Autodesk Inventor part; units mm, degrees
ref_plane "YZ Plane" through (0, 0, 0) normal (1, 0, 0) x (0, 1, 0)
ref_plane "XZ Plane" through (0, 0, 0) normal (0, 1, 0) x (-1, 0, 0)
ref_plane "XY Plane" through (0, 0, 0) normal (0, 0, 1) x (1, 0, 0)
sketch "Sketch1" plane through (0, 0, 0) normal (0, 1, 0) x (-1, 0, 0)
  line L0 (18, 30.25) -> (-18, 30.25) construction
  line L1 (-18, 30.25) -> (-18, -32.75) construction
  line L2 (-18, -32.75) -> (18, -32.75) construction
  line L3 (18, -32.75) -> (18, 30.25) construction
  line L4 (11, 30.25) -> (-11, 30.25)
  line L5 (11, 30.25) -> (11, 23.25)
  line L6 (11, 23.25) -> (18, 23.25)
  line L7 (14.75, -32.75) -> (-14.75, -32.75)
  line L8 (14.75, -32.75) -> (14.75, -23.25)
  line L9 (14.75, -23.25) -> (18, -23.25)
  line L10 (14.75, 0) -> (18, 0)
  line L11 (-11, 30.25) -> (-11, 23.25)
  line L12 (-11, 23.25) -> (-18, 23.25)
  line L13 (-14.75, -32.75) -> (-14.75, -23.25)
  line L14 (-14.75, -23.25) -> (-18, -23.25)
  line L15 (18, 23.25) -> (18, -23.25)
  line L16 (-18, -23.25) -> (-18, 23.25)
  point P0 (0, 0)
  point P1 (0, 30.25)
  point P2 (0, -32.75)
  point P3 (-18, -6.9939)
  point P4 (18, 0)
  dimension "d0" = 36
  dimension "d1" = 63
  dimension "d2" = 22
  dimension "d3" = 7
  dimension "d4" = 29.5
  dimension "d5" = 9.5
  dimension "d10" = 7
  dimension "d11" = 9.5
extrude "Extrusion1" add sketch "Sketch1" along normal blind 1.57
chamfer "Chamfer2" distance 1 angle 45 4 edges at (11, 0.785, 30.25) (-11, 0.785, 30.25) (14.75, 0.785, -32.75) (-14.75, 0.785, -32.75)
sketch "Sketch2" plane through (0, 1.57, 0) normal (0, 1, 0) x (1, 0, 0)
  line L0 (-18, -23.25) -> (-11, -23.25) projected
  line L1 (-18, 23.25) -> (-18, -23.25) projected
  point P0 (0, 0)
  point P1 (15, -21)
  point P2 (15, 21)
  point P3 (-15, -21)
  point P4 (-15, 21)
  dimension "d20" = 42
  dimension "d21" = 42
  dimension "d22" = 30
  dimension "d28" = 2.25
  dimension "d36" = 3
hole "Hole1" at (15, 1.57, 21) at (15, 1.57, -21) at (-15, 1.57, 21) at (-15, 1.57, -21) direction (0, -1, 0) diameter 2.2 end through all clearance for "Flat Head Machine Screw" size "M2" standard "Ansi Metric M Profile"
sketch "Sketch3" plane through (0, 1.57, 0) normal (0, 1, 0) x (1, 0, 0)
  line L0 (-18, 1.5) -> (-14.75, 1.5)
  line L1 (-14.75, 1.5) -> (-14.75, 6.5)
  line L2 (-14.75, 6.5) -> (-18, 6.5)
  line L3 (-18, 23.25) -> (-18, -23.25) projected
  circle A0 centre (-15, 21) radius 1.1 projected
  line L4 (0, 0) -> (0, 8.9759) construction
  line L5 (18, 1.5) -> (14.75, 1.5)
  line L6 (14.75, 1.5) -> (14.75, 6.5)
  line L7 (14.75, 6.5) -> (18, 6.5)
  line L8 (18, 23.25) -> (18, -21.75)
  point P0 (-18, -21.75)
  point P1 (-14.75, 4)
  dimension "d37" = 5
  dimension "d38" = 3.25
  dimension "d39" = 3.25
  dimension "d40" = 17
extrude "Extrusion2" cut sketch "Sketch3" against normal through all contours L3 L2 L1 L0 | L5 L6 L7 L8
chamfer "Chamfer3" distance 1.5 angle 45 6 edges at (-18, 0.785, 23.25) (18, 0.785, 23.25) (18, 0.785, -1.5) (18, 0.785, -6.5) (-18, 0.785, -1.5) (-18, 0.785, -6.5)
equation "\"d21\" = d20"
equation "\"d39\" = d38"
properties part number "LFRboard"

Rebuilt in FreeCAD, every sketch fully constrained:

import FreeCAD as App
import Part
import Sketcher
from FreeCAD import Vector


def edges_at(feature, points):
    """Names of the edges that pass closest to the given points."""
    edges = feature.Shape.Edges
    near = lambda p: min(range(len(edges)), key=lambda i: edges[i].distToShape(Part.Vertex(*p))[0])
    return sorted({f"Edge{near(p) + 1}" for p in points})

doc = App.newDocument("Part")
body = doc.addObject("PartDesign::Body", "Body")

# Sketch on XZ plane
sketch1 = doc.addObject("Sketcher::SketchObject", "Sketch")
body.addObject(sketch1)
sketch1.AttachmentSupport = (doc.XZ_Plane, [""])
sketch1.MapMode = "FlatFace"
sketch1.addGeometry(Part.LineSegment(Vector(-11, 23.2, 0), Vector(-11, 30.2, 0)), False)
sketch1.addGeometry(Part.LineSegment(Vector(-11, 30.2, 0), Vector(11, 30.2, 0)), False)
sketch1.addGeometry(Part.LineSegment(Vector(11, 30.2, 0), Vector(11, 23.2, 0)), False)
sketch1.addGeometry(Part.LineSegment(Vector(11, 23.2, 0), Vector(18, 23.2, 0)), False)
sketch1.addGeometry(Part.LineSegment(Vector(18, 23.2, 0), Vector(18, -23.2, 0)), False)
sketch1.addGeometry(Part.LineSegment(Vector(18, -23.2, 0), Vector(14.8, -23.2, 0)), False)
sketch1.addGeometry(Part.LineSegment(Vector(14.8, -23.2, 0), Vector(14.8, -32.8, 0)), False)
sketch1.addGeometry(Part.LineSegment(Vector(14.8, -32.8, 0), Vector(-14.8, -32.8, 0)), False)
sketch1.addGeometry(Part.LineSegment(Vector(-14.8, -32.8, 0), Vector(-14.8, -23.2, 0)), False)
sketch1.addGeometry(Part.LineSegment(Vector(-14.8, -23.2, 0), Vector(-18, -23.2, 0)), False)
sketch1.addGeometry(Part.LineSegment(Vector(-18, -23.2, 0), Vector(-18, 23.2, 0)), False)
sketch1.addGeometry(Part.LineSegment(Vector(-18, 23.2, 0), Vector(-11, 23.2, 0)), False)
sketch1.addConstraint(Sketcher.Constraint("Coincident", 0, 2, 1, 1))
sketch1.addConstraint(Sketcher.Constraint("Coincident", 1, 2, 2, 1))
sketch1.addConstraint(Sketcher.Constraint("Coincident", 2, 2, 3, 1))
sketch1.addConstraint(Sketcher.Constraint("Coincident", 3, 2, 4, 1))
sketch1.addConstraint(Sketcher.Constraint("Coincident", 4, 2, 5, 1))
sketch1.addConstraint(Sketcher.Constraint("Coincident", 5, 2, 6, 1))
sketch1.addConstraint(Sketcher.Constraint("Coincident", 6, 2, 7, 1))
sketch1.addConstraint(Sketcher.Constraint("Coincident", 7, 2, 8, 1))
sketch1.addConstraint(Sketcher.Constraint("Coincident", 8, 2, 9, 1))
sketch1.addConstraint(Sketcher.Constraint("Coincident", 9, 2, 10, 1))
sketch1.addConstraint(Sketcher.Constraint("Coincident", 10, 2, 11, 1))
sketch1.addConstraint(Sketcher.Constraint("Coincident", 11, 2, 0, 1))
sketch1.addConstraint(Sketcher.Constraint("Vertical", 0))
sketch1.addConstraint(Sketcher.Constraint("Horizontal", 1))
sketch1.addConstraint(Sketcher.Constraint("Vertical", 2))
sketch1.addConstraint(Sketcher.Constraint("Horizontal", 3))
sketch1.addConstraint(Sketcher.Constraint("Vertical", 4))
sketch1.addConstraint(Sketcher.Constraint("Horizontal", 5))
sketch1.addConstraint(Sketcher.Constraint("Vertical", 6))
sketch1.addConstraint(Sketcher.Constraint("Horizontal", 7))
sketch1.addConstraint(Sketcher.Constraint("Vertical", 8))
sketch1.addConstraint(Sketcher.Constraint("Horizontal", 9))
sketch1.addConstraint(Sketcher.Constraint("Vertical", 10))
sketch1.addConstraint(Sketcher.Constraint("Horizontal", 11))
sketch1.addConstraint(Sketcher.Constraint("Symmetric", 3, 2, 9, 2, -1, 1))
sketch1.addConstraint(Sketcher.Constraint("Symmetric", 5, 2, 8, 2, -2))
sketch1.addConstraint(Sketcher.Constraint("Symmetric", 2, 2, 11, 2, -2))
sketch1.addConstraint(Sketcher.Constraint("Equal", 11, 0))
sketch1.addConstraint(Sketcher.Constraint("DistanceX", 1, 1, 1, 2, 22.0))
sketch1.addConstraint(Sketcher.Constraint("DistanceX", 3, 1, 3, 2, 7.0))
sketch1.addConstraint(Sketcher.Constraint("DistanceX", 7, 2, 7, 1, 29.5))
sketch1.addConstraint(Sketcher.Constraint("DistanceY", 6, 2, 6, 1, 9.5))
sketch1.addConstraint(Sketcher.Constraint("DistanceY", 6, 2, 1, 2, 63.0))
pad1 = doc.addObject("PartDesign::Pad", "Pad")
body.addObject(pad1)
pad1.Profile = sketch1
pad1.Length = 1.57
pad1.Reversed = True
doc.recompute()

chamfer = doc.addObject("PartDesign::Chamfer", "Chamfer")
body.addObject(chamfer)
chamfer.Base = (pad1, edges_at(pad1, [
    (11, 0.785, 30.25),
    (-11, 0.785, 30.25),
    (14.75, 0.785, -32.75),
    (-14.75, 0.785, -32.75),
]))
chamfer.Size = 1

# Sketch on XZ plane
sketch2 = doc.addObject("Sketcher::SketchObject", "Sketch001")
body.addObject(sketch2)
sketch2.AttachmentSupport = (doc.XZ_Plane, [""])
sketch2.MapMode = "FlatFace"
sketch2.AttachmentOffset = App.Placement(Vector(0, 0, -1.57), App.Rotation())
sketch2.addGeometry(Part.Circle(Vector(15, 21, 0), Vector(0, 0, 1), 1.1), False)
sketch2.addGeometry(Part.Circle(Vector(15, -21, 0), Vector(0, 0, 1), 1.1), False)
sketch2.addGeometry(Part.Circle(Vector(-15, 21, 0), Vector(0, 0, 1), 1.1), False)
sketch2.addGeometry(Part.Circle(Vector(-15, -21, 0), Vector(0, 0, 1), 1.1), False)
sketch2.addConstraint(Sketcher.Constraint("Equal", 0, 1))
sketch2.addConstraint(Sketcher.Constraint("Equal", 1, 2))
sketch2.addConstraint(Sketcher.Constraint("Equal", 2, 3))
sketch2.addConstraint(Sketcher.Constraint("Symmetric", 1, 3, 2, 3, -1, 1))
sketch2.addConstraint(Sketcher.Constraint("Symmetric", 0, 3, 3, 3, -1, 1))
sketch2.addConstraint(Sketcher.Constraint("Symmetric", 0, 3, 2, 3, -2))
sketch2.addConstraint(Sketcher.Constraint("Diameter", 0, 2.2))
sketch2.addConstraint(Sketcher.Constraint("DistanceX", -1, 1, 0, 3, 15.0))
sketch2.addConstraint(Sketcher.Constraint("DistanceY", -1, 1, 0, 3, 21.0))
doc.recompute()
hole = doc.addObject("PartDesign::Hole", "Hole")
body.addObject(hole)
hole.Profile = sketch2
hole.ThreadType = "None"
hole.Diameter = 2.2
hole.DepthType = "ThroughAll"
hole.Reversed = True

# Sketch on XZ plane
sketch3 = doc.addObject("Sketcher::SketchObject", "Sketch002")
body.addObject(sketch3)
sketch3.AttachmentSupport = (doc.XZ_Plane, [""])
sketch3.MapMode = "FlatFace"
sketch3.AttachmentOffset = App.Placement(Vector(0, 0, -1.57), App.Rotation())
sketch3.addGeometry(Part.LineSegment(Vector(-18, -6.5, 0), Vector(-18, -1.5, 0)), False)
sketch3.addGeometry(Part.LineSegment(Vector(-18, -1.5, 0), Vector(-14.8, -1.5, 0)), False)
sketch3.addGeometry(Part.LineSegment(Vector(-14.8, -1.5, 0), Vector(-14.8, -6.5, 0)), False)
sketch3.addGeometry(Part.LineSegment(Vector(-14.8, -6.5, 0), Vector(-18, -6.5, 0)), False)
sketch3.addGeometry(Part.LineSegment(Vector(14.8, -1.5, 0), Vector(18, -1.5, 0)), False)
sketch3.addGeometry(Part.LineSegment(Vector(18, -1.5, 0), Vector(18, -6.5, 0)), False)
sketch3.addGeometry(Part.LineSegment(Vector(18, -6.5, 0), Vector(14.8, -6.5, 0)), False)
sketch3.addGeometry(Part.LineSegment(Vector(14.8, -6.5, 0), Vector(14.8, -1.5, 0)), False)
sketch3.addConstraint(Sketcher.Constraint("Coincident", 0, 2, 1, 1))
sketch3.addConstraint(Sketcher.Constraint("Coincident", 1, 2, 2, 1))
sketch3.addConstraint(Sketcher.Constraint("Coincident", 2, 2, 3, 1))
sketch3.addConstraint(Sketcher.Constraint("Coincident", 3, 2, 0, 1))
sketch3.addConstraint(Sketcher.Constraint("Coincident", 4, 2, 5, 1))
sketch3.addConstraint(Sketcher.Constraint("Coincident", 5, 2, 6, 1))
sketch3.addConstraint(Sketcher.Constraint("Coincident", 6, 2, 7, 1))
sketch3.addConstraint(Sketcher.Constraint("Coincident", 7, 2, 4, 1))
sketch3.addConstraint(Sketcher.Constraint("Vertical", 0))
sketch3.addConstraint(Sketcher.Constraint("Horizontal", 1))
sketch3.addConstraint(Sketcher.Constraint("Vertical", 2))
sketch3.addConstraint(Sketcher.Constraint("Horizontal", 3))
sketch3.addConstraint(Sketcher.Constraint("Horizontal", 4))
sketch3.addConstraint(Sketcher.Constraint("Vertical", 5))
sketch3.addConstraint(Sketcher.Constraint("Horizontal", 6))
sketch3.addConstraint(Sketcher.Constraint("Vertical", 7))
sketch3.addConstraint(Sketcher.Constraint("Symmetric", 0, 2, 4, 2, -2))
sketch3.addConstraint(Sketcher.Constraint("Symmetric", 2, 2, 6, 2, -2))
sketch3.addConstraint(Sketcher.Constraint("DistanceY", 0, 1, 0, 2, 5.0))
sketch3.addConstraint(Sketcher.Constraint("DistanceX", 1, 1, 1, 2, 3.25))
sketch3.addConstraint(Sketcher.Constraint("DistanceX", 0, 2, -1, 1, 18.0))
sketch3.addConstraint(Sketcher.Constraint("DistanceY", 0, 2, -1, 1, 1.5))
pocket1 = doc.addObject("PartDesign::Pocket", "Pocket")
body.addObject(pocket1)
pocket1.Profile = sketch3
pocket1.Type = "ThroughAll"
pocket1.Reversed = True
doc.recompute()

chamfer2 = doc.addObject("PartDesign::Chamfer", "Chamfer001")
body.addObject(chamfer2)
chamfer2.Base = (pocket1, edges_at(pocket1, [
    (-18, 0.785, 23.25),
    (18, 0.785, 23.25),
    (18, 0.785, -1.5),
    (18, 0.785, -6.5),
    (-18, 0.785, -1.5),
    (-18, 0.785, -6.5),
]))
chamfer2.Size = 1.5

doc.recompute()
